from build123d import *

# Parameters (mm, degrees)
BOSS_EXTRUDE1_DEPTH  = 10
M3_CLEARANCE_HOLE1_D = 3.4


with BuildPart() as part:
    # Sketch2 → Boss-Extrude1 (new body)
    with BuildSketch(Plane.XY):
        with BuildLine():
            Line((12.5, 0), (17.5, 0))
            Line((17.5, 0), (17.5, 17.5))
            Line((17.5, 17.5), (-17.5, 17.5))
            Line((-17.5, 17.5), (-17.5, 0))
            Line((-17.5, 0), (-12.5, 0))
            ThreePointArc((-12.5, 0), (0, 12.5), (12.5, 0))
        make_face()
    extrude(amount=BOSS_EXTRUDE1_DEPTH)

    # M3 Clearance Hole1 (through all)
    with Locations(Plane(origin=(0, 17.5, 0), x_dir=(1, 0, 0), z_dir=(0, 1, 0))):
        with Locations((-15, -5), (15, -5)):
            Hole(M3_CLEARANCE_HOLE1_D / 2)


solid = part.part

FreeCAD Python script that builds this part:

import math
import FreeCAD as App
import Part
import Sketcher

V = App.Vector

doc = App.newDocument("Part")
body = doc.addObject("PartDesign::Body", "Body")

sketch1 = body.newObject("Sketcher::SketchObject", "Sketch")
sketch1.AttachmentSupport = (doc.getObject("XY_Plane"), [""])
sketch1.MapMode = "FlatFace"
sketch1.addGeometry(Part.LineSegment(V(12, 0, 0), V(18, 0, 0)), False)
sketch1.addGeometry(Part.LineSegment(V(18, 0, 0), V(18, 18, 0)), False)
sketch1.addGeometry(Part.LineSegment(V(18, 18, 0), V(-18, 18, 0)), False)
sketch1.addGeometry(Part.LineSegment(V(-18, 18, 0), V(-18, 0, 0)), False)
sketch1.addGeometry(Part.LineSegment(V(-18, 0, 0), V(-12, 0, 0)), False)
sketch1.addGeometry(Part.ArcOfCircle(Part.Circle(V(0, 0, 0), V(0, 0, 1), 12), math.radians(0), math.radians(180)), False)
sketch1.addConstraint(Sketcher.Constraint("Coincident", 0, 2, 1, 1))
sketch1.addConstraint(Sketcher.Constraint("Coincident", 1, 2, 2, 1))
sketch1.addConstraint(Sketcher.Constraint("Coincident", 2, 2, 3, 1))
sketch1.addConstraint(Sketcher.Constraint("Coincident", 3, 2, 4, 1))
sketch1.addConstraint(Sketcher.Constraint("Coincident", 4, 2, 5, 2))
sketch1.addConstraint(Sketcher.Constraint("Coincident", 5, 1, 0, 1))
sketch1.addConstraint(Sketcher.Constraint("Horizontal", 0))
sketch1.addConstraint(Sketcher.Constraint("Vertical", 1))
sketch1.addConstraint(Sketcher.Constraint("Horizontal", 2))
sketch1.addConstraint(Sketcher.Constraint("Vertical", 3))
sketch1.addConstraint(Sketcher.Constraint("Horizontal", 4))
sketch1.addConstraint(Sketcher.Constraint("Coincident", 5, 3, -1, 1))
sketch1.addConstraint(Sketcher.Constraint("Symmetric", 0, 2, 3, 2, -1, 1))
sketch1.addConstraint(Sketcher.Constraint("PointOnObject", 0, 2, -1))
sketch1.addConstraint(Sketcher.Constraint("Radius", 5, 12.5))
sketch1.addConstraint(Sketcher.Constraint("DistanceX", 0, 1, 0, 2, 5.0))
sketch1.addConstraint(Sketcher.Constraint("DistanceY", 1, 1, 1, 2, 17.5))
pad1 = body.newObject("PartDesign::Pad", "Pad")
pad1.Profile = sketch1
pad1.Length = 10

sketch2 = body.newObject("Sketcher::SketchObject", "Sketch001")
sketch2.AttachmentSupport = (doc.getObject("XZ_Plane"), [""])
sketch2.MapMode = "FlatFace"
sketch2.AttachmentOffset = App.Placement(V(0, 0, -17.5), App.Rotation())
sketch2.addGeometry(Part.Circle(V(-15, 5, 0), V(0, 0, 1), 1.7), False)
sketch2.addGeometry(Part.Circle(V(15, 5, 0), V(0, 0, 1), 1.7), False)
sketch2.addConstraint(Sketcher.Constraint("Equal", 0, 1))
sketch2.addConstraint(Sketcher.Constraint("Symmetric", 0, 3, 1, 3, -2))
sketch2.addConstraint(Sketcher.Constraint("Diameter", 0, 3.4))
sketch2.addConstraint(Sketcher.Constraint("DistanceX", 0, 3, -1, 1, 15.0))
sketch2.addConstraint(Sketcher.Constraint("DistanceY", -1, 1, 0, 3, 5.0))
doc.recompute()
hole = body.newObject("PartDesign::Hole", "Hole")
hole.Profile = sketch2
hole.ThreadType = "None"
hole.Diameter = 3.4
hole.DepthType = "ThroughAll"
hole.Reversed = True

doc.recompute()
